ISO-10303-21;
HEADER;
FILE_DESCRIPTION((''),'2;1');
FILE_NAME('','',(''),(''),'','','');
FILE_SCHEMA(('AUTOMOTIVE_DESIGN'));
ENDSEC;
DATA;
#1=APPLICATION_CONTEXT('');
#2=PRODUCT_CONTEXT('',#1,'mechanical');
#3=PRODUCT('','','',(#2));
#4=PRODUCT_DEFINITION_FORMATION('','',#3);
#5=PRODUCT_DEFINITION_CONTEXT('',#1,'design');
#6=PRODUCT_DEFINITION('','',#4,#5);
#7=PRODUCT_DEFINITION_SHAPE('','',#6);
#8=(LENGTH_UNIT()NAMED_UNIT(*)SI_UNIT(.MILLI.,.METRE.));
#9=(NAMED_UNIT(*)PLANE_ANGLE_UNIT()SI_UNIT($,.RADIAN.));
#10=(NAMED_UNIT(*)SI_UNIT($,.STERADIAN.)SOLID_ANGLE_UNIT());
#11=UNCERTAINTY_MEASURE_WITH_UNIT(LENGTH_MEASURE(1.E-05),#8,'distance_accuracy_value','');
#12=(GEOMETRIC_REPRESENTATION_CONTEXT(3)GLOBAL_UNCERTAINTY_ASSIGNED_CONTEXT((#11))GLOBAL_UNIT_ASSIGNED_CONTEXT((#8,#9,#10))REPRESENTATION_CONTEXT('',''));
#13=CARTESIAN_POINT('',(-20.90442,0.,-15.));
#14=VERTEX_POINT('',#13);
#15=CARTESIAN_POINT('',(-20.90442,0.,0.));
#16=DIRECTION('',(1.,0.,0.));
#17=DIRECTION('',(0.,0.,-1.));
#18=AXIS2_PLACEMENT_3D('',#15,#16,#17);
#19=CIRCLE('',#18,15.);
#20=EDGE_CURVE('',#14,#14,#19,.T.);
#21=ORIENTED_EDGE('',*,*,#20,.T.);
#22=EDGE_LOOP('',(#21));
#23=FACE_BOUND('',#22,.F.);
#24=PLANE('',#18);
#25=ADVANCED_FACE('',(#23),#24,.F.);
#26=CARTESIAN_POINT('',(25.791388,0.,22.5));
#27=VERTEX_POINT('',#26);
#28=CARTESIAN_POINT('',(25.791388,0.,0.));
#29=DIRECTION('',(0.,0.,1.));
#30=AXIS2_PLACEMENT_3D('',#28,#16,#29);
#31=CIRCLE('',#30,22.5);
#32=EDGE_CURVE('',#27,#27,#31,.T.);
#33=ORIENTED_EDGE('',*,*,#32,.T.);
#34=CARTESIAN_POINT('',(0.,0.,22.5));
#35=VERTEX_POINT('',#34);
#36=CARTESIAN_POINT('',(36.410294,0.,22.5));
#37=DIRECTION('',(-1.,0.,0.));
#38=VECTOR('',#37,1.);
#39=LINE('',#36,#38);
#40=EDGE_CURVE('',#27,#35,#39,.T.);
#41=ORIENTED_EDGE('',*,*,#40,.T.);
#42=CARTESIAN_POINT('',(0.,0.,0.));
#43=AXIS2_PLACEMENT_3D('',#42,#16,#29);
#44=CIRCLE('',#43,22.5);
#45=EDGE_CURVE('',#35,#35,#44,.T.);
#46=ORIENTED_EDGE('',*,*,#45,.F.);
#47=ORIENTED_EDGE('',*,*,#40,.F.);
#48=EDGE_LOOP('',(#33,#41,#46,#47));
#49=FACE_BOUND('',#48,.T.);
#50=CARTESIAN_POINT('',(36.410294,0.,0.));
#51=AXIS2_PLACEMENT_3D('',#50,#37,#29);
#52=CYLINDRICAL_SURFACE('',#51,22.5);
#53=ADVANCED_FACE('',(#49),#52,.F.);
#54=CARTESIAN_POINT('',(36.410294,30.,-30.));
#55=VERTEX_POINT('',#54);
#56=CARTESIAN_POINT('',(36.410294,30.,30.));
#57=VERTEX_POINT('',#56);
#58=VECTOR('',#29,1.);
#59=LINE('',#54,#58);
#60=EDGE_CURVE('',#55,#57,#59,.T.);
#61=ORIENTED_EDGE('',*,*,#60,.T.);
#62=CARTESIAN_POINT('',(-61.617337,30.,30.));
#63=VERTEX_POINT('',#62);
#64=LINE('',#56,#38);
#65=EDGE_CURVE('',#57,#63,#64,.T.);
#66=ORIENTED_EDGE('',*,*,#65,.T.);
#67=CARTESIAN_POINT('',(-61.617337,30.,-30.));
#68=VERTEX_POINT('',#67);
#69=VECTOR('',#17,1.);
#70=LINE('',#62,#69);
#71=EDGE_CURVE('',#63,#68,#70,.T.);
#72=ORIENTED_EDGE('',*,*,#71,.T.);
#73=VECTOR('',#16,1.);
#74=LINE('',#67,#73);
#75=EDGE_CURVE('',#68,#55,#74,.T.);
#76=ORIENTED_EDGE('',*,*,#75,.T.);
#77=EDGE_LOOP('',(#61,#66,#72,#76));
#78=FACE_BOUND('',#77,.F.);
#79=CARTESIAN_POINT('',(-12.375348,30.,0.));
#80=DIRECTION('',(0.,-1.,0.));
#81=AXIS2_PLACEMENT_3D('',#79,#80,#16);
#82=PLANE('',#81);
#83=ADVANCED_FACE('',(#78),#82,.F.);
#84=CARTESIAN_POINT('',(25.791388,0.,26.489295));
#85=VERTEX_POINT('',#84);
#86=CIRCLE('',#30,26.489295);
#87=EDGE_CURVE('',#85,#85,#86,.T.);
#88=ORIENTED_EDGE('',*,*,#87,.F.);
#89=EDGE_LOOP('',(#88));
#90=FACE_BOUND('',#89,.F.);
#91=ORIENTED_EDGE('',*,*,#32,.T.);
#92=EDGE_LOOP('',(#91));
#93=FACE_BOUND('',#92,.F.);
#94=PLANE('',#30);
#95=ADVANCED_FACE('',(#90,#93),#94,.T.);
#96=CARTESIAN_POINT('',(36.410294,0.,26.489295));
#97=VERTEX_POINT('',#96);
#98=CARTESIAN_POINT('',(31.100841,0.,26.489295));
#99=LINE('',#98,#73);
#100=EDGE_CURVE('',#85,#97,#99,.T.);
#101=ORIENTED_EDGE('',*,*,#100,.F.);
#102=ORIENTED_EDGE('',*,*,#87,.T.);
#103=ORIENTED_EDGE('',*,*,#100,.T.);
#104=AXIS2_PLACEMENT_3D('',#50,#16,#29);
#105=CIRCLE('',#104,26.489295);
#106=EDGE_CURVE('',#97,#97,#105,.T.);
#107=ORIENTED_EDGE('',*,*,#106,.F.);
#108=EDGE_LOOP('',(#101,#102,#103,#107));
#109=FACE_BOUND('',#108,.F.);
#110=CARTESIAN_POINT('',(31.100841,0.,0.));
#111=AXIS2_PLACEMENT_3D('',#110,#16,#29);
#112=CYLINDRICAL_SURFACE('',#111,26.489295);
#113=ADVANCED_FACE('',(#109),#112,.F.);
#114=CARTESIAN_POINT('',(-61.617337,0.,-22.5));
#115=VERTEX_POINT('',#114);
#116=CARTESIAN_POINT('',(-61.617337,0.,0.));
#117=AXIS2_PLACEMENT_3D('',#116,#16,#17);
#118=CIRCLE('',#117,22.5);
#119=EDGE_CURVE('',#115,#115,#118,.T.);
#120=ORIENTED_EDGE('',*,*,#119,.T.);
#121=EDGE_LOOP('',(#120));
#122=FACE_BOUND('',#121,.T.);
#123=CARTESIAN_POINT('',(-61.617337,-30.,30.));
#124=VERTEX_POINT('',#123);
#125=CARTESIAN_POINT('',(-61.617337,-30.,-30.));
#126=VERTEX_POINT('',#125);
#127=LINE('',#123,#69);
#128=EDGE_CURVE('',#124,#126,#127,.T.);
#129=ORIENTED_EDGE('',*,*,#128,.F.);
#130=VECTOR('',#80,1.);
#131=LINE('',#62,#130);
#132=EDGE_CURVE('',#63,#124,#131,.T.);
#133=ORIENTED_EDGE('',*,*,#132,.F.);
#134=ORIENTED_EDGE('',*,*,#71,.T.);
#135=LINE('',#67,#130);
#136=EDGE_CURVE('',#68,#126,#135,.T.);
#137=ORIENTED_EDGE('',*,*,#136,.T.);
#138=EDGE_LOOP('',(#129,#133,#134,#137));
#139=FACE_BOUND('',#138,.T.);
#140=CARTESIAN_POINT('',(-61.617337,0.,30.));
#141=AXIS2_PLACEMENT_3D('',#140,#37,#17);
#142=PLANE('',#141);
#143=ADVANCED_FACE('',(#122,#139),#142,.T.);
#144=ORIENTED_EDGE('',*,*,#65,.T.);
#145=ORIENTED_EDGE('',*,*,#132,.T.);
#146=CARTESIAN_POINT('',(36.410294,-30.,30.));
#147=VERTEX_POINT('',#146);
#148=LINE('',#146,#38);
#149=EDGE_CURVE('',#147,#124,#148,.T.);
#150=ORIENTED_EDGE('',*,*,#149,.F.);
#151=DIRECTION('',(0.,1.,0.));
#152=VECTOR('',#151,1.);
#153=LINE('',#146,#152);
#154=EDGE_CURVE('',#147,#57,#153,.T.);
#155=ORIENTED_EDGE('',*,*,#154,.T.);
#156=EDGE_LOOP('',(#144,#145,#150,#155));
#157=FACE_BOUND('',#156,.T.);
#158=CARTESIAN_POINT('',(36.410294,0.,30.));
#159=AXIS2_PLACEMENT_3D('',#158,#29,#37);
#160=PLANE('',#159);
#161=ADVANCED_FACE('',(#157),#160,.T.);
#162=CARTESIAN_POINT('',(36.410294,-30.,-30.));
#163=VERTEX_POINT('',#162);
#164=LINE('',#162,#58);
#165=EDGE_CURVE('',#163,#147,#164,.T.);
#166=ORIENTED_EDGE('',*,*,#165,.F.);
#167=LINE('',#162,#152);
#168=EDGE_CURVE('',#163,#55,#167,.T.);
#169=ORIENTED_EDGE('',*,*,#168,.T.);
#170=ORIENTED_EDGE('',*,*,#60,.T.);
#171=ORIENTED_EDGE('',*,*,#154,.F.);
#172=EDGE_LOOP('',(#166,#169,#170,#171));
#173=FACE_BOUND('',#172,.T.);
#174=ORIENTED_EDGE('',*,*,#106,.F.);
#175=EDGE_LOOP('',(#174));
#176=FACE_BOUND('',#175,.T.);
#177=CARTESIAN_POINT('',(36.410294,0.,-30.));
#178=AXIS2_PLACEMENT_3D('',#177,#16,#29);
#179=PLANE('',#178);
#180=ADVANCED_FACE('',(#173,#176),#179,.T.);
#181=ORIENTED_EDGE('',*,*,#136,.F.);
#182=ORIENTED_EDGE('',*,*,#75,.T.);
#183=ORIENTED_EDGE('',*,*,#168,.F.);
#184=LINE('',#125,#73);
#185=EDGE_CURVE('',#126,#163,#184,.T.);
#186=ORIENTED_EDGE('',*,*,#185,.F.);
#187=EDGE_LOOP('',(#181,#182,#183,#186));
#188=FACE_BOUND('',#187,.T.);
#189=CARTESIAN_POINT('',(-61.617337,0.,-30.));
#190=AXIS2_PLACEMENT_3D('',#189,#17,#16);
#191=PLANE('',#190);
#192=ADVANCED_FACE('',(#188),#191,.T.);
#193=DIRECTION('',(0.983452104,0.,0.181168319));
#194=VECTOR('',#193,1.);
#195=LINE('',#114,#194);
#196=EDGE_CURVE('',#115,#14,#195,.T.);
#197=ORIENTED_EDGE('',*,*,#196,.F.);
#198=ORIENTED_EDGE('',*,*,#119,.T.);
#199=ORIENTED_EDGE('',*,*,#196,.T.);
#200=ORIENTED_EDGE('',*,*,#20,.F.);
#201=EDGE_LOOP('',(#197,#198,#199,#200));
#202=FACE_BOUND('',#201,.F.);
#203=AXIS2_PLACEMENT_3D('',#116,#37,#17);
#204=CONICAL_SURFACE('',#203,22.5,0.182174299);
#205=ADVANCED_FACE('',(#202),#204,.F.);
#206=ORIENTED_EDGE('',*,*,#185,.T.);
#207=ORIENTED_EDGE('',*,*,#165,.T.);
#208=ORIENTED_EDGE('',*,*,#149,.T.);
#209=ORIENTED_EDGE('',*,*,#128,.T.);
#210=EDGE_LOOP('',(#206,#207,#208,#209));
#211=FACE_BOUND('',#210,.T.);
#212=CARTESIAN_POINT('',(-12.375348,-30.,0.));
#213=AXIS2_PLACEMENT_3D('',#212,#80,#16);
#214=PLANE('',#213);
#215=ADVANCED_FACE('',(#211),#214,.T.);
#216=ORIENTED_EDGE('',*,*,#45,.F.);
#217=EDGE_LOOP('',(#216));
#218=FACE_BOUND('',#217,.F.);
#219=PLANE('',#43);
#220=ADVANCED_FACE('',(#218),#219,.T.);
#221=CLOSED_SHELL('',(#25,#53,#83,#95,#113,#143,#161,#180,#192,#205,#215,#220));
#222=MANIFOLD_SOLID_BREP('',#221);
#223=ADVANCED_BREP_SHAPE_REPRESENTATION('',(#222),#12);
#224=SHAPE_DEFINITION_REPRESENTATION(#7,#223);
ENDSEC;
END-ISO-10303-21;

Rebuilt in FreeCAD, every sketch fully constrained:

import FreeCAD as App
import Part
import Sketcher

doc = App.newDocument("Part")
body = doc.addObject("PartDesign::Body", "Body")

# Sketch on XZ plane
sketch1 = doc.addObject("Sketcher::SketchObject", "Sketch")
body.addObject(sketch1)
sketch1.AttachmentSupport = (doc.XZ_Plane, [""])
sketch1.MapMode = "FlatFace"
sketch1.addGeometry(Part.LineSegment(App.Vector(36, 30, 0), App.Vector(-62, 30, 0)), False)
sketch1.addGeometry(Part.LineSegment(App.Vector(-62, 30, 0), App.Vector(-62, -30, 0)), False)
sketch1.addGeometry(Part.LineSegment(App.Vector(-62, -30, 0), App.Vector(36, -30, 0)), False)
sketch1.addGeometry(Part.LineSegment(App.Vector(36, -30, 0), App.Vector(36, 30, 0)), False)
sketch1.addConstraint(Sketcher.Constraint("Coincident", 0, 2, 1, 1))
sketch1.addConstraint(Sketcher.Constraint("Coincident", 1, 2, 2, 1))
sketch1.addConstraint(Sketcher.Constraint("Coincident", 2, 2, 3, 1))
sketch1.addConstraint(Sketcher.Constraint("Coincident", 3, 2, 0, 1))
sketch1.addConstraint(Sketcher.Constraint("Horizontal", 0))
sketch1.addConstraint(Sketcher.Constraint("Vertical", 1))
sketch1.addConstraint(Sketcher.Constraint("Horizontal", 2))
sketch1.addConstraint(Sketcher.Constraint("Vertical", 3))
sketch1.addConstraint(Sketcher.Constraint("DistanceY", 1, 2, 1, 1, 60.0))
sketch1.addConstraint(Sketcher.Constraint("DistanceY", -1, 1, 0, 2, 30.0))
sketch1.addConstraint(Sketcher.Constraint("DistanceX", 0, 2, 0, 1, 98.027632))
sketch1.addConstraint(Sketcher.Constraint("DistanceX", 0, 2, -1, 1, 61.617337))
pad1 = doc.addObject("PartDesign::Pad", "Pad")
body.addObject(pad1)
pad1.Profile = sketch1
pad1.Length = 60
pad1.Midplane = True

# Sketch on XZ plane
sketch2 = doc.addObject("Sketcher::SketchObject", "Sketch001")
body.addObject(sketch2)
sketch2.AttachmentSupport = (doc.XZ_Plane, [""])
sketch2.MapMode = "FlatFace"
sketch2.addGeometry(Part.LineSegment(App.Vector(-21, 0, 0), App.Vector(-62, 0, 0)), False)
sketch2.addGeometry(Part.LineSegment(App.Vector(-62, 0, 0), App.Vector(-62, -22, 0)), False)
sketch2.addGeometry(Part.LineSegment(App.Vector(-62, -22, 0), App.Vector(-21, -15, 0)), False)
sketch2.addGeometry(Part.LineSegment(App.Vector(-21, -15, 0), App.Vector(-21, 0, 0)), False)
sketch2.addConstraint(Sketcher.Constraint("Coincident", 0, 2, 1, 1))
sketch2.addConstraint(Sketcher.Constraint("Coincident", 1, 2, 2, 1))
sketch2.addConstraint(Sketcher.Constraint("Coincident", 2, 2, 3, 1))
sketch2.addConstraint(Sketcher.Constraint("Coincident", 3, 2, 0, 1))
sketch2.addConstraint(Sketcher.Constraint("Horizontal", 0))
sketch2.addConstraint(Sketcher.Constraint("Vertical", 1))
sketch2.addConstraint(Sketcher.Constraint("Vertical", 3))
sketch2.addConstraint(Sketcher.Constraint("PointOnObject", 0, 2, -1))
sketch2.addConstraint(Sketcher.Constraint("DistanceY", 3, 1, 3, 2, 15.0))
sketch2.addConstraint(Sketcher.Constraint("DistanceY", 1, 2, 1, 1, 22.5))
sketch2.addConstraint(Sketcher.Constraint("DistanceX", 0, 2, 0, 1, 40.712917))
sketch2.addConstraint(Sketcher.Constraint("DistanceX", 2, 2, -1, 1, 20.90442))
groove = doc.addObject("PartDesign::Groove", "Groove")
body.addObject(groove)
groove.Profile = sketch2
groove.ReferenceAxis = (sketch2, ["H_Axis"])
groove.Angle = 360

# Sketch on XZ plane
sketch3 = doc.addObject("Sketcher::SketchObject", "Sketch002")
body.addObject(sketch3)
sketch3.AttachmentSupport = (doc.XZ_Plane, [""])
sketch3.MapMode = "FlatFace"
sketch3.addGeometry(Part.LineSegment(App.Vector(36.4, 0, 0), App.Vector(36.4, 26.5, 0)), False)
sketch3.addGeometry(Part.LineSegment(App.Vector(36.4, 26.5, 0), App.Vector(25.8, 26.5, 0)), False)
sketch3.addGeometry(Part.LineSegment(App.Vector(25.8, 26.5, 0), App.Vector(25.8, 22.5, 0)), False)
sketch3.addGeometry(Part.LineSegment(App.Vector(25.8, 22.5, 0), App.Vector(0, 22.5, 0)), False)
sketch3.addGeometry(Part.LineSegment(App.Vector(0, 22.5, 0), App.Vector(0, 0, 0)), False)
sketch3.addGeometry(Part.LineSegment(App.Vector(0, 0, 0), App.Vector(36.4, 0, 0)), False)
sketch3.addConstraint(Sketcher.Constraint("Coincident", 0, 2, 1, 1))
sketch3.addConstraint(Sketcher.Constraint("Coincident", 1, 2, 2, 1))
sketch3.addConstraint(Sketcher.Constraint("Coincident", 2, 2, 3, 1))
sketch3.addConstraint(Sketcher.Constraint("Coincident", 3, 2, 4, 1))
sketch3.addConstraint(Sketcher.Constraint("Coincident", 4, 2, 5, 1))
sketch3.addConstraint(Sketcher.Constraint("Coincident", 5, 2, 0, 1))
sketch3.addConstraint(Sketcher.Constraint("Vertical", 0))
sketch3.addConstraint(Sketcher.Constraint("Horizontal", 1))
sketch3.addConstraint(Sketcher.Constraint("Vertical", 2))
sketch3.addConstraint(Sketcher.Constraint("Horizontal", 3))
sketch3.addConstraint(Sketcher.Constraint("Vertical", 4))
sketch3.addConstraint(Sketcher.Constraint("Horizontal", 5))
sketch3.addConstraint(Sketcher.Constraint("Coincident", 4, 2, -1, 1))
sketch3.addConstraint(Sketcher.Constraint("DistanceY", 4, 2, 4, 1, 22.5))
sketch3.addConstraint(Sketcher.Constraint("DistanceX", 3, 2, 3, 1, 25.791388))
sketch3.addConstraint(Sketcher.Constraint("DistanceX", 1, 2, 1, 1, 10.618906))
sketch3.addConstraint(Sketcher.Constraint("DistanceY", 0, 1, 0, 2, 26.489295))
groove2 = doc.addObject("PartDesign::Groove", "Groove001")
body.addObject(groove2)
groove2.Profile = sketch3
groove2.ReferenceAxis = (sketch3, ["H_Axis"])
groove2.Angle = 360

doc.recompute()
